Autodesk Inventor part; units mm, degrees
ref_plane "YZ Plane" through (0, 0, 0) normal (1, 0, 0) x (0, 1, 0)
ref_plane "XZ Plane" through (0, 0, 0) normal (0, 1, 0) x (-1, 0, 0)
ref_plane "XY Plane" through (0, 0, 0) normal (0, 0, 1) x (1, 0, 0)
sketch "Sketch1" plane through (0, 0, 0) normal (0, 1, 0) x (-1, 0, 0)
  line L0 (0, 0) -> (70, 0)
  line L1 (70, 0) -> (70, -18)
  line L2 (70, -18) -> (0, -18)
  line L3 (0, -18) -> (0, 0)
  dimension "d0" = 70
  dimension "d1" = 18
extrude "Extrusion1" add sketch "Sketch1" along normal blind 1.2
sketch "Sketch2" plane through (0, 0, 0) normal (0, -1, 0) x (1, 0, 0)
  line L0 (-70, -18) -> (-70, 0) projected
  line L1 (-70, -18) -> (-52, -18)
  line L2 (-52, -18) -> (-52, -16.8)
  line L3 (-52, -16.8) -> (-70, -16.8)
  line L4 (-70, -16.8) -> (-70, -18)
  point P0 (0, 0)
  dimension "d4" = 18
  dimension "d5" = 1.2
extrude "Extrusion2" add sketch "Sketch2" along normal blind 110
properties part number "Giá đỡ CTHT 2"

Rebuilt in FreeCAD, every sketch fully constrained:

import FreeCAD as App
import Part
import Sketcher

V = App.Vector
Q = App.Units.Quantity

doc = App.newDocument("Part")
params = doc.addObject("Spreadsheet::Sheet", "Params")
for row, (alias, value) in enumerate([
    ("sketch1_width", "70 mm"),
    ("sketch1_height", "18 mm"),
    ("pad1_length", "1.2 mm"),
    ("sketch2_width", "18 mm"),
    ("sketch2_height", "1.2 mm"),
    ("pad2_length", "110 mm"),
], start=1):
    params.set(f"A{row}", alias)
    params.set(f"B{row}", "=" + value)
    params.setAlias(f"B{row}", alias)

body = doc.addObject("PartDesign::Body", "Body")

# Sketch on XZ plane
sketch1 = doc.addObject("Sketcher::SketchObject", "Sketch")
body.addObject(sketch1)
sketch1.AttachmentSupport = (doc.XZ_Plane, [""])
sketch1.MapMode = "FlatFace"
sketch1.addGeometry(Part.LineSegment(V(-70, 0, 0), V(0, 0, 0)), False)
sketch1.addGeometry(Part.LineSegment(V(0, 0, 0), V(0, -18, 0)), False)
sketch1.addGeometry(Part.LineSegment(V(0, -18, 0), V(-70, -18, 0)), False)
sketch1.addGeometry(Part.LineSegment(V(-70, -18, 0), V(-70, 0, 0)), False)
sketch1.addConstraint(Sketcher.Constraint("Coincident", 0, 2, 1, 1))
sketch1.addConstraint(Sketcher.Constraint("Coincident", 1, 2, 2, 1))
sketch1.addConstraint(Sketcher.Constraint("Coincident", 2, 2, 3, 1))
sketch1.addConstraint(Sketcher.Constraint("Coincident", 3, 2, 0, 1))
sketch1.addConstraint(Sketcher.Constraint("Horizontal", 0))
sketch1.addConstraint(Sketcher.Constraint("Vertical", 1))
sketch1.addConstraint(Sketcher.Constraint("Horizontal", 2))
sketch1.addConstraint(Sketcher.Constraint("Vertical", 3))
sketch1.addConstraint(Sketcher.Constraint("Coincident", 0, 2, -1, 1))
sketch1.addConstraint(Sketcher.Constraint("DistanceX", 0, 1, 0, 2, Q("70 mm")))
sketch1.addConstraint(Sketcher.Constraint("DistanceY", 1, 2, 1, 1, Q("18 mm")))
sketch1.setExpression("Constraints[9]", "Params.sketch1_width")
sketch1.setExpression("Constraints[10]", "Params.sketch1_height")
pad1 = doc.addObject("PartDesign::Pad", "Pad")
body.addObject(pad1)
pad1.Profile = sketch1
pad1.setExpression("Length", "Params.pad1_length")
pad1.Reversed = True

# Sketch on XZ plane
sketch2 = doc.addObject("Sketcher::SketchObject", "Sketch001")
body.addObject(sketch2)
sketch2.AttachmentSupport = (doc.XZ_Plane, [""])
sketch2.MapMode = "FlatFace"
sketch2.addGeometry(Part.LineSegment(V(-70, -16.8, 0), V(-70, -18, 0)), False)
sketch2.addGeometry(Part.LineSegment(V(-70, -18, 0), V(-52, -18, 0)), False)
sketch2.addGeometry(Part.LineSegment(V(-52, -18, 0), V(-52, -16.8, 0)), False)
sketch2.addGeometry(Part.LineSegment(V(-52, -16.8, 0), V(-70, -16.8, 0)), False)
sketch2.addConstraint(Sketcher.Constraint("Coincident", 0, 2, 1, 1))
sketch2.addConstraint(Sketcher.Constraint("Coincident", 1, 2, 2, 1))
sketch2.addConstraint(Sketcher.Constraint("Coincident", 2, 2, 3, 1))
sketch2.addConstraint(Sketcher.Constraint("Coincident", 3, 2, 0, 1))
sketch2.addConstraint(Sketcher.Constraint("Vertical", 0))
sketch2.addConstraint(Sketcher.Constraint("Horizontal", 1))
sketch2.addConstraint(Sketcher.Constraint("Vertical", 2))
sketch2.addConstraint(Sketcher.Constraint("Horizontal", 3))
sketch2.addConstraint(Sketcher.Constraint("DistanceX", 1, 1, 1, 2, Q("18 mm")))
sketch2.addConstraint(Sketcher.Constraint("DistanceY", 0, 2, 0, 1, Q("1.2 mm")))
sketch2.addConstraint(Sketcher.Constraint("DistanceY", 0, 2, -1, 1, Q("18 mm")))
sketch2.addConstraint(Sketcher.Constraint("DistanceX", 0, 2, -1, 1, Q("70 mm")))
sketch2.setExpression("Constraints[8]", "Params.sketch2_width")
sketch2.setExpression("Constraints[9]", "Params.sketch2_height")
pad2 = doc.addObject("PartDesign::Pad", "Pad001")
body.addObject(pad2)
pad2.Profile = sketch2
pad2.setExpression("Length", "Params.pad2_length")

doc.recompute()
